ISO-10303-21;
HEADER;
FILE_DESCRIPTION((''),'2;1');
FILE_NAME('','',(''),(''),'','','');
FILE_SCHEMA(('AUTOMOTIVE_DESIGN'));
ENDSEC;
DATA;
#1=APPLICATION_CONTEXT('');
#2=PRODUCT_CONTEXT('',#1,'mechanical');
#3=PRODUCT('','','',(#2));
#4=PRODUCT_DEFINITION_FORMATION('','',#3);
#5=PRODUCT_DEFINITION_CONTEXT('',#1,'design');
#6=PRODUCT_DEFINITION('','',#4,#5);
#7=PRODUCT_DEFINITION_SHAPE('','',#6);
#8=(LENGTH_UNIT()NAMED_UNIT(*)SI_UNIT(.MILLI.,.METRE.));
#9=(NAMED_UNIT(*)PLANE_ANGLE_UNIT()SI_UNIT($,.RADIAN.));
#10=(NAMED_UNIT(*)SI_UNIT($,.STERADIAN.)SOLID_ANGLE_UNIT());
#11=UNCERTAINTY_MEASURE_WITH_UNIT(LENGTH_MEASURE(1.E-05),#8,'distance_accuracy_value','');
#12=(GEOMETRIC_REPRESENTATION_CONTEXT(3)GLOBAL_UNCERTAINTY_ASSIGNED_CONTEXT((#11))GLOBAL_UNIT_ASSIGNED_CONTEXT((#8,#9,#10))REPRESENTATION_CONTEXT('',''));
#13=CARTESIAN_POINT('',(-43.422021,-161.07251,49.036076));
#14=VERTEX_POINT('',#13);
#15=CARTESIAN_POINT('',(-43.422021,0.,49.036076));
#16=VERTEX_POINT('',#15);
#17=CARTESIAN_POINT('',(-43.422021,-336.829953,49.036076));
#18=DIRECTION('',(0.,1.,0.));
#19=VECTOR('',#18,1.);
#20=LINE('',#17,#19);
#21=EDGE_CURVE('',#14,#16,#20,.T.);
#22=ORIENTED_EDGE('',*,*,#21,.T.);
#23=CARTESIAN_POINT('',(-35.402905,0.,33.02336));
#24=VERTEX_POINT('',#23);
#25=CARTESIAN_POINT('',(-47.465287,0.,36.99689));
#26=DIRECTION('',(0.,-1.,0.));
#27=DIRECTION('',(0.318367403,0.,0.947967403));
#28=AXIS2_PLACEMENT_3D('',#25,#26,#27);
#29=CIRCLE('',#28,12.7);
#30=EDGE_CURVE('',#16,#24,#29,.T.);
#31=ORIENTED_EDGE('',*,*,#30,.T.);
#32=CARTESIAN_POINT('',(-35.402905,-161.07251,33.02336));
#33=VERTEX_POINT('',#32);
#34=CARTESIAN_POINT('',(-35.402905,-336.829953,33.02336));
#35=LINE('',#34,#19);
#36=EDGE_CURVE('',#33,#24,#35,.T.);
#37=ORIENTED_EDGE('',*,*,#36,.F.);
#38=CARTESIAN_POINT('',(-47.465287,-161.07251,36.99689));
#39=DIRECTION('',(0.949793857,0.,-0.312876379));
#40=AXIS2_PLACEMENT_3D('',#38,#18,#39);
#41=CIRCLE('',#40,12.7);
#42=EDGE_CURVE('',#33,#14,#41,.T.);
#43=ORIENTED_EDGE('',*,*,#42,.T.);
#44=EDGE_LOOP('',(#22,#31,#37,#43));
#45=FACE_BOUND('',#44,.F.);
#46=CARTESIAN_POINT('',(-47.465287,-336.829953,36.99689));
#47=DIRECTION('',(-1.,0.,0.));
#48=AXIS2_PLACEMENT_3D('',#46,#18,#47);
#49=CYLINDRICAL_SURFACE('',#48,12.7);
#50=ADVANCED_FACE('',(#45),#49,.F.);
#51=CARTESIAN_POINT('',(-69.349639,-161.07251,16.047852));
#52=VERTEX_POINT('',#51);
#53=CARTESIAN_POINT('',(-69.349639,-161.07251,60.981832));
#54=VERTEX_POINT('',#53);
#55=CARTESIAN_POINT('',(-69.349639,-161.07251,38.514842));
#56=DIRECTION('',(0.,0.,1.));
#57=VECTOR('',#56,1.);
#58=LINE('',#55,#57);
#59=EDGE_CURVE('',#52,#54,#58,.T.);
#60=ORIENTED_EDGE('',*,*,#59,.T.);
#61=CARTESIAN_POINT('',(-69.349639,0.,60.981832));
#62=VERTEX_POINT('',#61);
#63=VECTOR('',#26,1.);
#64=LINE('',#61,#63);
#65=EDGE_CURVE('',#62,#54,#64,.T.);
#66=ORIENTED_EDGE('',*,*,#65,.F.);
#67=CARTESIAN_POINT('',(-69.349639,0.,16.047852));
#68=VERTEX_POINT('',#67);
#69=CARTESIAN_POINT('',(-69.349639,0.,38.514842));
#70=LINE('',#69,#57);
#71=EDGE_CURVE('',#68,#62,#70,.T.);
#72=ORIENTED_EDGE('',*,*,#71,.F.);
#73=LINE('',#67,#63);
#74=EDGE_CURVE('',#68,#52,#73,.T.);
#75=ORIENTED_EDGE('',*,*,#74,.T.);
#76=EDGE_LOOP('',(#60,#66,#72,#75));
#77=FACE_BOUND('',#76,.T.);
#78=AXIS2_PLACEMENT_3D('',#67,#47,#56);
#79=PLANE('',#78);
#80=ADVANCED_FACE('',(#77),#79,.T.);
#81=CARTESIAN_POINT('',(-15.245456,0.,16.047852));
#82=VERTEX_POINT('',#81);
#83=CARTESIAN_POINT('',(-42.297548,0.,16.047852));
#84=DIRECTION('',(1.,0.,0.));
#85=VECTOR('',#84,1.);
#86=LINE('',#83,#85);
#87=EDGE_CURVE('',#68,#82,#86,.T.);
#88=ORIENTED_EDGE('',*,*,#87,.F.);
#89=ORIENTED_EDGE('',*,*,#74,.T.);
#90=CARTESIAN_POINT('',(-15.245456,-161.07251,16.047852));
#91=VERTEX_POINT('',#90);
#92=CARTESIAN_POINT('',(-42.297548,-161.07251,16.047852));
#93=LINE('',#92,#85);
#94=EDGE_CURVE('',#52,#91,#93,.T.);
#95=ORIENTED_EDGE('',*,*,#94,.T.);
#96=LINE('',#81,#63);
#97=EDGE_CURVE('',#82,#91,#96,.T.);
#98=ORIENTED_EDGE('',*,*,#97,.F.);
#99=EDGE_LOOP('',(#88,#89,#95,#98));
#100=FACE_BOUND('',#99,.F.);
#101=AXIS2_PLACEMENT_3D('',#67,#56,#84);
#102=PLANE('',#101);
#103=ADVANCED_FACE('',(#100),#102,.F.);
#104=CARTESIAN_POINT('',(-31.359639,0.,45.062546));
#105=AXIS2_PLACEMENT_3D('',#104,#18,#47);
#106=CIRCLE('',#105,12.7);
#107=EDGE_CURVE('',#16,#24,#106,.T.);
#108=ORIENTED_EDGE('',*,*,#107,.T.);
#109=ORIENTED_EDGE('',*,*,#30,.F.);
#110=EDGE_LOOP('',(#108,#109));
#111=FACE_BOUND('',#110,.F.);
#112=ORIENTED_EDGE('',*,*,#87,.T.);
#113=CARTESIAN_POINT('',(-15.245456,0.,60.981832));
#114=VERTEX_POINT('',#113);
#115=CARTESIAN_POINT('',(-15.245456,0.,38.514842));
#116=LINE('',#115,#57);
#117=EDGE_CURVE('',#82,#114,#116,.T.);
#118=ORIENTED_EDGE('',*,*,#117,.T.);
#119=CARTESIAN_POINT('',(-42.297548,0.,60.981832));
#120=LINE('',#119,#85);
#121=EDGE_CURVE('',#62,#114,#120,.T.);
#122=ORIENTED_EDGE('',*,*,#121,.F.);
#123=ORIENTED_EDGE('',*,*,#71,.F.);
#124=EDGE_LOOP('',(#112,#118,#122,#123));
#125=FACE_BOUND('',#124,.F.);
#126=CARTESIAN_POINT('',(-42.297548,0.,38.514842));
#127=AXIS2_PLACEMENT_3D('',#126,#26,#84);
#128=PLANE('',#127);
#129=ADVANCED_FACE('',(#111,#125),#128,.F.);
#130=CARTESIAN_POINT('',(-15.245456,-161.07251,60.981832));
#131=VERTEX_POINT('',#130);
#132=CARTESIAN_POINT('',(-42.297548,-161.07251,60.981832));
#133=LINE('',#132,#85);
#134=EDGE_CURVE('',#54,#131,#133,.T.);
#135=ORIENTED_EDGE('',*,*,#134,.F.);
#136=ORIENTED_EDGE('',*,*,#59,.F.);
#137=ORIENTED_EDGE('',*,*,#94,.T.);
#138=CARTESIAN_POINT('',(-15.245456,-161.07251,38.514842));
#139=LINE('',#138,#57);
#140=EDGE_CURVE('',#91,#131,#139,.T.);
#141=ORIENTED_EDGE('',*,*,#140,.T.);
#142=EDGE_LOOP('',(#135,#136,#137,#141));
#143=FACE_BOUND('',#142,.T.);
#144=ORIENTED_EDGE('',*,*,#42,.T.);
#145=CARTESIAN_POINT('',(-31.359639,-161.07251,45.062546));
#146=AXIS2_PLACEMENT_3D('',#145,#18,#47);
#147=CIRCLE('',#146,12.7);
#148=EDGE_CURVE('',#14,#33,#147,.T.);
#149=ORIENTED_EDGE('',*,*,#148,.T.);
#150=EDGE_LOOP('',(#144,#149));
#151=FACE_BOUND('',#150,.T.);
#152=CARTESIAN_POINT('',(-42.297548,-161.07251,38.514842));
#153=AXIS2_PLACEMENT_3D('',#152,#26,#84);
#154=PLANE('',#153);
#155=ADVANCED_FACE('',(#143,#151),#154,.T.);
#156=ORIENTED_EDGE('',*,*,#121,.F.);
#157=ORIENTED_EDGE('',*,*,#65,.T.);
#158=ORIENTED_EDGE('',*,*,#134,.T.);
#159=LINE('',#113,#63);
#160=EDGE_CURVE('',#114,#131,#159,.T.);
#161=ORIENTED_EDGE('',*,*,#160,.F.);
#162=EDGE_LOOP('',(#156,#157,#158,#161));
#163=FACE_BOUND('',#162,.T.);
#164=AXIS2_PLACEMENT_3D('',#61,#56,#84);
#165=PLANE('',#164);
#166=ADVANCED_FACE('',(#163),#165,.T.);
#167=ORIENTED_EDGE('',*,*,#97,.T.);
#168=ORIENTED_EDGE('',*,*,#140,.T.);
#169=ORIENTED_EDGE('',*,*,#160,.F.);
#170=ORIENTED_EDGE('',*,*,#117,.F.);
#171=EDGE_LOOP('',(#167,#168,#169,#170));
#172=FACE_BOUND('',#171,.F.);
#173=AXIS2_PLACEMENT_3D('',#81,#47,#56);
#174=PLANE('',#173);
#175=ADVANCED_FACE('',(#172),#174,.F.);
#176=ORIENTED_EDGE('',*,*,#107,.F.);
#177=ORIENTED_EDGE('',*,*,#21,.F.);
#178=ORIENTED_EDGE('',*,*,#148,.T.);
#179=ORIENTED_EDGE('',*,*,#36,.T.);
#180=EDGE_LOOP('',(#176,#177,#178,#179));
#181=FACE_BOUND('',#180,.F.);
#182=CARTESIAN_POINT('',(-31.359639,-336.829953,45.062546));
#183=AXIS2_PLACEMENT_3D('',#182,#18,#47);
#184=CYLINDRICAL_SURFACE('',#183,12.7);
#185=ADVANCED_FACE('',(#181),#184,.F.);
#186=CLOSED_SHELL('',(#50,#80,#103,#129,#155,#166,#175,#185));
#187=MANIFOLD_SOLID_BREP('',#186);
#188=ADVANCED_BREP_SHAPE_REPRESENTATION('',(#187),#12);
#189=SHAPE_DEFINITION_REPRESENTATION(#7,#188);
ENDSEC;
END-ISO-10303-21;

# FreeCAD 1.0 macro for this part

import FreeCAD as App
import Part
import Sketcher
from FreeCAD import Vector
Q = App.Units.Quantity

doc = App.newDocument("Part")
body = doc.addObject("PartDesign::Body", "Body")

# Sketch on XZ plane
sketch1 = body.newObject("Sketcher::SketchObject", "Sketch")
sketch1.AttachmentSupport = (doc.getObject("XZ_Plane"), [""])
sketch1.MapMode = "FlatFace"
sketch1.addGeometry([
    Part.LineSegment(Vector(-69, 61, 0), Vector(-69, 16, 0)),
    Part.LineSegment(Vector(-69, 16, 0), Vector(-15, 16, 0)),
    Part.LineSegment(Vector(-15, 16, 0), Vector(-15, 61, 0)),
    Part.LineSegment(Vector(-15, 61, 0), Vector(-69, 61, 0)),
], False)
sketch1.addConstraint([
    Sketcher.Constraint("Coincident", 0, 2, 1, 1),
    Sketcher.Constraint("Coincident", 1, 2, 2, 1),
    Sketcher.Constraint("Coincident", 2, 2, 3, 1),
    Sketcher.Constraint("Coincident", 3, 2, 0, 1),
    Sketcher.Constraint("Vertical", 0),
    Sketcher.Constraint("Horizontal", 1),
    Sketcher.Constraint("Vertical", 2),
    Sketcher.Constraint("Horizontal", 3),
    Sketcher.Constraint("DistanceY", 0, 2, 0, 1, Q("44.93398 mm")),
    Sketcher.Constraint("DistanceX", 1, 1, 1, 2, Q("54.104183 mm")),
    Sketcher.Constraint("DistanceX", 0, 2, -1, 1, Q("69.349639 mm")),
    Sketcher.Constraint("DistanceY", -1, 1, 0, 2, Q("16.047852 mm")),
])
pad1 = body.newObject("PartDesign::Pad", "Pad")
pad1.Profile = sketch1
pad1.Length = 161.07251

# Sketch on XZ plane
sketch2 = body.newObject("Sketcher::SketchObject", "Sketch001")
sketch2.AttachmentSupport = (doc.getObject("XZ_Plane"), [""])
sketch2.MapMode = "FlatFace"
sketch2.AttachmentOffset = App.Placement(Vector(0, 0, 161.07251), App.Rotation())
sketch2.addGeometry(Part.Circle(Vector(-47, 37, 0), Vector(0, 0, 1), 13), False)
sketch2.addConstraint([
    Sketcher.Constraint("Diameter", 0, Q("1 in")),
    Sketcher.Constraint("DistanceY", -1, 1, 0, 3, Q("36.99689 mm")),
    Sketcher.Constraint("DistanceX", 0, 3, -1, 1, Q("47.465287 mm")),
])
doc.recompute()
hole = body.newObject("PartDesign::Hole", "Hole")
hole.Profile = sketch2
hole.ThreadType = "None"
hole.Diameter = Q("1 in")
hole.DepthType = "ThroughAll"

# Sketch on XZ plane
sketch3 = body.newObject("Sketcher::SketchObject", "Sketch002")
sketch3.AttachmentSupport = (doc.getObject("XZ_Plane"), [""])
sketch3.MapMode = "FlatFace"
sketch3.AttachmentOffset = App.Placement(Vector(0, 0, 161.07251), App.Rotation())
sketch3.addGeometry(Part.Circle(Vector(-31, 45, 0), Vector(0, 0, 1), 13), False)
sketch3.addConstraint([
    Sketcher.Constraint("Diameter", 0, Q("1 in")),
    Sketcher.Constraint("DistanceX", 0, 3, -1, 1, Q("31.359639 mm")),
    Sketcher.Constraint("DistanceY", -1, 1, 0, 3, Q("45.062546 mm")),
])
doc.recompute()
hole2 = body.newObject("PartDesign::Hole", "Hole001")
hole2.Profile = sketch3
hole2.ThreadType = "None"
hole2.Diameter = Q("1 in")
hole2.DepthType = "ThroughAll"

doc.recompute()
